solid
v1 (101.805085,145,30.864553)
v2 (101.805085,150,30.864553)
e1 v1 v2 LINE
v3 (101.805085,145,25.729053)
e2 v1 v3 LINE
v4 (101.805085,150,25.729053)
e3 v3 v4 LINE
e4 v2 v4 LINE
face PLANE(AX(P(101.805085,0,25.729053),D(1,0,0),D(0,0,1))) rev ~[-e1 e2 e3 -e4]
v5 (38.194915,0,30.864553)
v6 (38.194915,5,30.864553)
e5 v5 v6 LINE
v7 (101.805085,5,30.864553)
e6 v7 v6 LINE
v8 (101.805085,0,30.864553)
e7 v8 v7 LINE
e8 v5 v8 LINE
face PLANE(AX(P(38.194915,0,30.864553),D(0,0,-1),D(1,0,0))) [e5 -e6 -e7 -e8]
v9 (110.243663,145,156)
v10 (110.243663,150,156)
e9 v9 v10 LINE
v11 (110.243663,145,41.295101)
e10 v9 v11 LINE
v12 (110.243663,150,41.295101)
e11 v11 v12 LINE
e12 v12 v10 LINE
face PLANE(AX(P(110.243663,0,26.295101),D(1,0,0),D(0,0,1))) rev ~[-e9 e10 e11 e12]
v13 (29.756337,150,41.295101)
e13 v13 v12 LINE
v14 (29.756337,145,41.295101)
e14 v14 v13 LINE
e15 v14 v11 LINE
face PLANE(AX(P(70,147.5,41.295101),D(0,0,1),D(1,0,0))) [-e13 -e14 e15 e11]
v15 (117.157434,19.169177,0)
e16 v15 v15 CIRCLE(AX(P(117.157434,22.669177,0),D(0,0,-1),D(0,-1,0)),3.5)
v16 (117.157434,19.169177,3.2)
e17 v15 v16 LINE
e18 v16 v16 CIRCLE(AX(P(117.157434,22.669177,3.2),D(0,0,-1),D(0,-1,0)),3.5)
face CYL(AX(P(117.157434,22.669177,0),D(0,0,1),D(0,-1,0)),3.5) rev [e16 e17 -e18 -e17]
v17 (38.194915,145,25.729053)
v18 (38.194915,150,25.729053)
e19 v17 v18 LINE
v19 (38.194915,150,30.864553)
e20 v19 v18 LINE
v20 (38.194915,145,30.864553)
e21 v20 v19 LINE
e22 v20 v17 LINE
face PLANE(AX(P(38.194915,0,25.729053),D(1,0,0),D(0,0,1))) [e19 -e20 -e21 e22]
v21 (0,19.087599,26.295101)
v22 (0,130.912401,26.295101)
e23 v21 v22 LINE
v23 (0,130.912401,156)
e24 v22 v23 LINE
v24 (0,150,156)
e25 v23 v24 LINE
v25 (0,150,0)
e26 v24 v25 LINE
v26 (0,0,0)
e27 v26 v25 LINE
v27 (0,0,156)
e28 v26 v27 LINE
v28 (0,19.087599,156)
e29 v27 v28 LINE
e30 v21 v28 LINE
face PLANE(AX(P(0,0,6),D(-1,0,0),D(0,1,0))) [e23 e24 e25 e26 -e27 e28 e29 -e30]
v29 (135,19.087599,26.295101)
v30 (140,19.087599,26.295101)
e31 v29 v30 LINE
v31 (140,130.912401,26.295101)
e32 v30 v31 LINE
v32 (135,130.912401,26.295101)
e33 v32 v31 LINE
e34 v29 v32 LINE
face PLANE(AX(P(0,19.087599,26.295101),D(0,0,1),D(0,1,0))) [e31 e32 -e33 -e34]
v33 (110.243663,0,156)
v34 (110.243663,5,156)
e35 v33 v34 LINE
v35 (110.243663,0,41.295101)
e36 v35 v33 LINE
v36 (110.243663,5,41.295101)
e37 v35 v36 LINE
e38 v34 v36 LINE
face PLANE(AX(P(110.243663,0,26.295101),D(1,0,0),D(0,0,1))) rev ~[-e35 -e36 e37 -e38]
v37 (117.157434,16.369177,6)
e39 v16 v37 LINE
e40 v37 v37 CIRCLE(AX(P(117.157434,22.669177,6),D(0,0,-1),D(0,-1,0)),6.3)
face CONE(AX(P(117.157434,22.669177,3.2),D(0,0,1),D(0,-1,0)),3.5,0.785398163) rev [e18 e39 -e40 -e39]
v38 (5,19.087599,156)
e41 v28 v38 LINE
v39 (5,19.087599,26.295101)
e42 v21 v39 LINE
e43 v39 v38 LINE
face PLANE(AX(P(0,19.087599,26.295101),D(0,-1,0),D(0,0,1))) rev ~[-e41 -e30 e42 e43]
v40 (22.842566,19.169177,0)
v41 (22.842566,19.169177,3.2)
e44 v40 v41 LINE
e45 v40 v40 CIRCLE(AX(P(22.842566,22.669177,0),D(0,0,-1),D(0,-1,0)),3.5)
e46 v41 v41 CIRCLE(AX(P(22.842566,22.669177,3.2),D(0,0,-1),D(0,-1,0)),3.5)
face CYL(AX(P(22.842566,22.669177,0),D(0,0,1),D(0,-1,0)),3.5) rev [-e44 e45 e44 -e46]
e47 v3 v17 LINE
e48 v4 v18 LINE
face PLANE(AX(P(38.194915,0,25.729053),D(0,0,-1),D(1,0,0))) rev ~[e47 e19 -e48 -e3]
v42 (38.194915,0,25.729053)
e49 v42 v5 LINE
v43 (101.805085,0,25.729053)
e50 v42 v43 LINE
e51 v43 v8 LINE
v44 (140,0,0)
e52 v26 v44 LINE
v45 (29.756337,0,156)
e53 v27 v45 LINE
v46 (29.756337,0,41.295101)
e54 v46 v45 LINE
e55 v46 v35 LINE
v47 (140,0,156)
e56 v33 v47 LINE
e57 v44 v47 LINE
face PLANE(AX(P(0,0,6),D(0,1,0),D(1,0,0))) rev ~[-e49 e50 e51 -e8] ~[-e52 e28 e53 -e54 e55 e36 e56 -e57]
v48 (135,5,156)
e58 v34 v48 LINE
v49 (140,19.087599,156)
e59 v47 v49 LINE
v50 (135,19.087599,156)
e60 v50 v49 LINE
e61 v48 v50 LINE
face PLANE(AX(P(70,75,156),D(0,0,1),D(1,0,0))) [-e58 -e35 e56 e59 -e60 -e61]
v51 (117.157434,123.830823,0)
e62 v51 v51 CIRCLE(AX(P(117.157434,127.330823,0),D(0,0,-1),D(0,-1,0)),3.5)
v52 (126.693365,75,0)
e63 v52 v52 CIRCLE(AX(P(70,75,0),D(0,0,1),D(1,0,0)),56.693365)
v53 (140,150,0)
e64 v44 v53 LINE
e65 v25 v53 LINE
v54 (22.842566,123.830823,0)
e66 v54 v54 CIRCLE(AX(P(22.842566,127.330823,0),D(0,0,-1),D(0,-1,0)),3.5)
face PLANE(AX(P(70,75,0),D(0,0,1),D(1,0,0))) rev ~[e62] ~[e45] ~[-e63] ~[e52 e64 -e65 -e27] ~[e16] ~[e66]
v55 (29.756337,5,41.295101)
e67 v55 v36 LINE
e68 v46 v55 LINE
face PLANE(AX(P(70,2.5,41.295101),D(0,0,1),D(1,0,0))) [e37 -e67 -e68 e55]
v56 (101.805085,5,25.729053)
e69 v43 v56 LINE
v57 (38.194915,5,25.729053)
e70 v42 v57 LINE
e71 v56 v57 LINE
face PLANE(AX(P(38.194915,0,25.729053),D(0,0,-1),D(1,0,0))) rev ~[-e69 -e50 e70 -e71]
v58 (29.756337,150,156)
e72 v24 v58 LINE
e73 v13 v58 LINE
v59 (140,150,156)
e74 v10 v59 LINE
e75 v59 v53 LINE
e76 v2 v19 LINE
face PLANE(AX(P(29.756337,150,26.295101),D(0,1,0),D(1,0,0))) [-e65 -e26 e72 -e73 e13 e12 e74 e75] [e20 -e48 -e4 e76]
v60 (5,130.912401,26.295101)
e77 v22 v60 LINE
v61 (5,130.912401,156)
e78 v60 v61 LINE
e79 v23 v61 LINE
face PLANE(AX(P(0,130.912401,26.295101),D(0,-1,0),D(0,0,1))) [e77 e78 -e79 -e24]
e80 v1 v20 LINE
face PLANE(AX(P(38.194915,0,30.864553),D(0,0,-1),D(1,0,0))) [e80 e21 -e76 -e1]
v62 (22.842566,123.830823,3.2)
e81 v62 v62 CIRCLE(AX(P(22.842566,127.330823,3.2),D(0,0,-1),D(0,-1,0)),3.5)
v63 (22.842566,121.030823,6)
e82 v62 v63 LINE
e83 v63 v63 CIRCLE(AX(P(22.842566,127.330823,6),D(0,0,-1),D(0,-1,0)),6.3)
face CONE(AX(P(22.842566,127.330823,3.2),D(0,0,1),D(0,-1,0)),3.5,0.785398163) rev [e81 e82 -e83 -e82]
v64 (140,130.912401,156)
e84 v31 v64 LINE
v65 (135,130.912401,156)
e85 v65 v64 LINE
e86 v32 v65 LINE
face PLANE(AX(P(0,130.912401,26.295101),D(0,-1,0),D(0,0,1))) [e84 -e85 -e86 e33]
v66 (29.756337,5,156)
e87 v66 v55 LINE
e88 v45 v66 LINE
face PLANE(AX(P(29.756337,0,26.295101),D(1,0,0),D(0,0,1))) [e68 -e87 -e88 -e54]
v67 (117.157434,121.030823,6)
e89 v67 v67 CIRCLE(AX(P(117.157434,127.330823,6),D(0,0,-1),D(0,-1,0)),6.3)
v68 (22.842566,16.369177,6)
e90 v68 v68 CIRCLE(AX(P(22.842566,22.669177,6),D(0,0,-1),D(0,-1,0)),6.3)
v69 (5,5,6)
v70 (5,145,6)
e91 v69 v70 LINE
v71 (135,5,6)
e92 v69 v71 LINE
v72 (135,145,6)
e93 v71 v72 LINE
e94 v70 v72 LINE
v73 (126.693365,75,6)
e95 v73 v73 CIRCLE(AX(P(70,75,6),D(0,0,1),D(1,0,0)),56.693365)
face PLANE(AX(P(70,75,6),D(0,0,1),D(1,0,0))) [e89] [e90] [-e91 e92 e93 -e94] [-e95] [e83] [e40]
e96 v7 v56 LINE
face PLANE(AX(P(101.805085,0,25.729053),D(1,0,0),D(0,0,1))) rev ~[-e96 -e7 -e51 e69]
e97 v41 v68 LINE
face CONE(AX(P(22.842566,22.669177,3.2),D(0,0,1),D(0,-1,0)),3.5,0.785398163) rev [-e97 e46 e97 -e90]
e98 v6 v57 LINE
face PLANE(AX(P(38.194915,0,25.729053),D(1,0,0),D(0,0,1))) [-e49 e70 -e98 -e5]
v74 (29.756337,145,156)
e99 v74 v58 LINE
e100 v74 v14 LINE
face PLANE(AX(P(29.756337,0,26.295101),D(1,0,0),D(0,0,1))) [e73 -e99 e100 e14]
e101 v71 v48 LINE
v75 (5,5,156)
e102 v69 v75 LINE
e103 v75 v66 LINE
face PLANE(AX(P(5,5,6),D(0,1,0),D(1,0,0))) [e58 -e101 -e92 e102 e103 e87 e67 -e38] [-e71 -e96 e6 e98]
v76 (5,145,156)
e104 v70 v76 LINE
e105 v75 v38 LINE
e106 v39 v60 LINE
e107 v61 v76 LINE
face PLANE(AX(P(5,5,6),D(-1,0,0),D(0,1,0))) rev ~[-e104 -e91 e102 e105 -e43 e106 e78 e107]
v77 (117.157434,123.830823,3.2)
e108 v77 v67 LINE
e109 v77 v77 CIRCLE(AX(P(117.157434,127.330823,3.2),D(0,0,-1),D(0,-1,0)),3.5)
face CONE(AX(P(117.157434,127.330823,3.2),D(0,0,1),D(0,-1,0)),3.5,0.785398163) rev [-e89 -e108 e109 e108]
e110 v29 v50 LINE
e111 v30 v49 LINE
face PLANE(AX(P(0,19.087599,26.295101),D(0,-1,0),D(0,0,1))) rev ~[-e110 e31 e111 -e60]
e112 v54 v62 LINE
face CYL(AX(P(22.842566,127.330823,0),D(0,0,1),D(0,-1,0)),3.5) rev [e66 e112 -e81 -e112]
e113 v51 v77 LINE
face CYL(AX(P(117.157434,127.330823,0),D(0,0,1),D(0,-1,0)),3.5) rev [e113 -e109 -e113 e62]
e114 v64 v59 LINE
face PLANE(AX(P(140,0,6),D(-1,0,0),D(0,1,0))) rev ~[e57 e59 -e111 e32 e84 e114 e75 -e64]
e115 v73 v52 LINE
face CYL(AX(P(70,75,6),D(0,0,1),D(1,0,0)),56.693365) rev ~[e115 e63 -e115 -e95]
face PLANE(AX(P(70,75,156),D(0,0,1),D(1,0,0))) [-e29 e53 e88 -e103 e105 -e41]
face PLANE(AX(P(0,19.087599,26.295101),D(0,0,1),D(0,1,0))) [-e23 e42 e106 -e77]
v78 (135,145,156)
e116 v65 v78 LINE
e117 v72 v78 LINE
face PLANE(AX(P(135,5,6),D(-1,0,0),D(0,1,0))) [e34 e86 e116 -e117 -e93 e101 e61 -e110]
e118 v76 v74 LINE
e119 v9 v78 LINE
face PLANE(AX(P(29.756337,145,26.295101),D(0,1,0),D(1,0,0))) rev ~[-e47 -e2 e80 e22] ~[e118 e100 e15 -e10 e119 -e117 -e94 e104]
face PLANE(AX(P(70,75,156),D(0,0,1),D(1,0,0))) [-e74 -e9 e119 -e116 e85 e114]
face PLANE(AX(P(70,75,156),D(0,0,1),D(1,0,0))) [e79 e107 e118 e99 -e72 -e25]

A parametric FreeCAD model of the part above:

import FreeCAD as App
import Part
import Sketcher

V = App.Vector
Q = App.Units.Quantity

doc = App.newDocument("Part")
body = doc.addObject("PartDesign::Body", "Body")

# Sketch on XY plane
sketch1 = body.newObject("Sketcher::SketchObject", "Sketch")
sketch1.AttachmentSupport = (doc.getObject("XY_Plane"), [""])
sketch1.MapMode = "FlatFace"
sketch1.addGeometry(Part.LineSegment(V(0, 150, 0), V(0, 0, 0)), False)
sketch1.addGeometry(Part.LineSegment(V(0, 0, 0), V(140, 0, 0)), False)
sketch1.addGeometry(Part.LineSegment(V(140, 0, 0), V(140, 150, 0)), False)
sketch1.addGeometry(Part.LineSegment(V(140, 150, 0), V(0, 150, 0)), False)
sketch1.addConstraint(Sketcher.Constraint("Coincident", 0, 2, 1, 1))
sketch1.addConstraint(Sketcher.Constraint("Coincident", 1, 2, 2, 1))
sketch1.addConstraint(Sketcher.Constraint("Coincident", 2, 2, 3, 1))
sketch1.addConstraint(Sketcher.Constraint("Coincident", 3, 2, 0, 1))
sketch1.addConstraint(Sketcher.Constraint("Vertical", 0))
sketch1.addConstraint(Sketcher.Constraint("Horizontal", 1))
sketch1.addConstraint(Sketcher.Constraint("Vertical", 2))
sketch1.addConstraint(Sketcher.Constraint("Horizontal", 3))
sketch1.addConstraint(Sketcher.Constraint("Coincident", 0, 2, -1, 1))
sketch1.addConstraint(Sketcher.Constraint("DistanceX", 1, 1, 1, 2, Q("140 mm")))
sketch1.addConstraint(Sketcher.Constraint("DistanceY", 0, 2, 0, 1, Q("150 mm")))
pad1 = body.newObject("PartDesign::Pad", "Pad")
pad1.Profile = sketch1
pad1.Length = 6

# Sketch on XY plane
sketch2 = body.newObject("Sketcher::SketchObject", "Sketch001")
sketch2.AttachmentSupport = (doc.getObject("XY_Plane"), [""])
sketch2.MapMode = "FlatFace"
sketch2.AttachmentOffset = App.Placement(V(0, 0, 6), App.Rotation())
sketch2.addGeometry(Part.LineSegment(V(0, 150, 0), V(0, 0, 0)), False)
sketch2.addGeometry(Part.LineSegment(V(0, 0, 0), V(140, 0, 0)), False)
sketch2.addGeometry(Part.LineSegment(V(140, 0, 0), V(140, 150, 0)), False)
sketch2.addGeometry(Part.LineSegment(V(140, 150, 0), V(0, 150, 0)), False)
sketch2.addGeometry(Part.LineSegment(V(135, 5, 0), V(5, 5, 0)), False)
sketch2.addGeometry(Part.LineSegment(V(5, 5, 0), V(5, 145, 0)), False)
sketch2.addGeometry(Part.LineSegment(V(5, 145, 0), V(135, 145, 0)), False)
sketch2.addGeometry(Part.LineSegment(V(135, 145, 0), V(135, 5, 0)), False)
sketch2.addConstraint(Sketcher.Constraint("Coincident", 0, 2, 1, 1))
sketch2.addConstraint(Sketcher.Constraint("Coincident", 1, 2, 2, 1))
sketch2.addConstraint(Sketcher.Constraint("Coincident", 2, 2, 3, 1))
sketch2.addConstraint(Sketcher.Constraint("Coincident", 3, 2, 0, 1))
sketch2.addConstraint(Sketcher.Constraint("Coincident", 4, 2, 5, 1))
sketch2.addConstraint(Sketcher.Constraint("Coincident", 5, 2, 6, 1))
sketch2.addConstraint(Sketcher.Constraint("Coincident", 6, 2, 7, 1))
sketch2.addConstraint(Sketcher.Constraint("Coincident", 7, 2, 4, 1))
sketch2.addConstraint(Sketcher.Constraint("Vertical", 0))
sketch2.addConstraint(Sketcher.Constraint("Horizontal", 1))
sketch2.addConstraint(Sketcher.Constraint("Vertical", 2))
sketch2.addConstraint(Sketcher.Constraint("Horizontal", 3))
sketch2.addConstraint(Sketcher.Constraint("Horizontal", 4))
sketch2.addConstraint(Sketcher.Constraint("Vertical", 5))
sketch2.addConstraint(Sketcher.Constraint("Horizontal", 6))
sketch2.addConstraint(Sketcher.Constraint("Vertical", 7))
sketch2.addConstraint(Sketcher.Constraint("Coincident", 0, 2, -1, 1))
sketch2.addConstraint(Sketcher.Constraint("Equal", 3, 5))
sketch2.addConstraint(Sketcher.Constraint("DistanceX", 1, 1, 1, 2, Q("140 mm")))
sketch2.addConstraint(Sketcher.Constraint("DistanceX", 4, 2, 4, 1, Q("130 mm")))
sketch2.addConstraint(Sketcher.Constraint("DistanceY", 0, 2, 0, 1, Q("150 mm")))
sketch2.addConstraint(Sketcher.Constraint("DistanceX", -1, 1, 4, 2, Q("5 mm")))
sketch2.addConstraint(Sketcher.Constraint("DistanceY", -1, 1, 4, 2, Q("5 mm")))
pad2 = body.newObject("PartDesign::Pad", "Pad001")
pad2.Profile = sketch2
pad2.Length = 150

# Sketch on XZ plane
sketch3 = body.newObject("Sketcher::SketchObject", "Sketch002")
sketch3.AttachmentSupport = (doc.getObject("XZ_Plane"), [""])
sketch3.MapMode = "FlatFace"
sketch3.addGeometry(Part.LineSegment(V(29.756337, 285.704899, 0), V(29.756337, 26.295101, 0)), False)
sketch3.addGeometry(Part.LineSegment(V(29.756337, 26.295101, 0), V(110.243663, 26.295101, 0)), False)
sketch3.addGeometry(Part.LineSegment(V(110.243663, 26.295101, 0), V(110.243663, 285.704899, 0)), False)
sketch3.addGeometry(Part.LineSegment(V(110.243663, 285.704899, 0), V(29.756337, 285.704899, 0)), False)
sketch3.addConstraint(Sketcher.Constraint("Coincident", 0, 2, 1, 1))
sketch3.addConstraint(Sketcher.Constraint("Coincident", 1, 2, 2, 1))
sketch3.addConstraint(Sketcher.Constraint("Coincident", 2, 2, 3, 1))
sketch3.addConstraint(Sketcher.Constraint("Coincident", 3, 2, 0, 1))
sketch3.addConstraint(Sketcher.Constraint("Vertical", 0))
sketch3.addConstraint(Sketcher.Constraint("Horizontal", 1))
sketch3.addConstraint(Sketcher.Constraint("Vertical", 2))
sketch3.addConstraint(Sketcher.Constraint("Horizontal", 3))
sketch3.addConstraint(Sketcher.Constraint("DistanceY", 0, 2, 0, 1, Q("259.409798 mm")))
sketch3.addConstraint(Sketcher.Constraint("DistanceY", -1, 1, 0, 2, Q("26.295101 mm")))
sketch3.addConstraint(Sketcher.Constraint("DistanceX", 1, 1, 1, 2, Q("80.487327 mm")))
sketch3.addConstraint(Sketcher.Constraint("DistanceX", -1, 1, 0, 2, Q("29.756337 mm")))
pocket1 = body.newObject("PartDesign::Pocket", "Pocket")
pocket1.Profile = sketch3
pocket1.Length = 150

# Sketch on YZ plane
sketch4 = body.newObject("Sketcher::SketchObject", "Sketch003")
sketch4.AttachmentSupport = (doc.getObject("YZ_Plane"), [""])
sketch4.MapMode = "FlatFace"
sketch4.addGeometry(Part.LineSegment(V(130.912401, 26.295101, 0), V(19.087599, 26.295101, 0)), False)
sketch4.addGeometry(Part.LineSegment(V(19.087599, 26.295101, 0), V(19.087599, 285.704899, 0)), False)
sketch4.addGeometry(Part.LineSegment(V(19.087599, 285.704899, 0), V(130.912401, 285.704899, 0)), False)
sketch4.addGeometry(Part.LineSegment(V(130.912401, 285.704899, 0), V(130.912401, 26.295101, 0)), False)
sketch4.addConstraint(Sketcher.Constraint("Coincident", 0, 2, 1, 1))
sketch4.addConstraint(Sketcher.Constraint("Coincident", 1, 2, 2, 1))
sketch4.addConstraint(Sketcher.Constraint("Coincident", 2, 2, 3, 1))
sketch4.addConstraint(Sketcher.Constraint("Coincident", 3, 2, 0, 1))
sketch4.addConstraint(Sketcher.Constraint("Horizontal", 0))
sketch4.addConstraint(Sketcher.Constraint("Vertical", 1))
sketch4.addConstraint(Sketcher.Constraint("Horizontal", 2))
sketch4.addConstraint(Sketcher.Constraint("Vertical", 3))
sketch4.addConstraint(Sketcher.Constraint("DistanceX", 0, 2, 0, 1, Q("111.824801 mm")))
sketch4.addConstraint(Sketcher.Constraint("DistanceY", 1, 1, 1, 2, Q("259.409798 mm")))
sketch4.addConstraint(Sketcher.Constraint("DistanceX", -1, 1, 0, 2, Q("19.087599 mm")))
sketch4.addConstraint(Sketcher.Constraint("DistanceY", -1, 1, 0, 2, Q("26.295101 mm")))
pocket2 = body.newObject("PartDesign::Pocket", "Pocket001")
pocket2.Profile = sketch4
pocket2.Length = 150
pocket2.Reversed = True

# Sketch on YZ plane
sketch5 = body.newObject("Sketcher::SketchObject", "Sketch004")
sketch5.AttachmentSupport = (doc.getObject("YZ_Plane"), [""])
sketch5.MapMode = "FlatFace"
sketch5.AttachmentOffset = App.Placement(V(0, 0, 22.842566), App.Rotation())
sketch5.addGeometry(Part.LineSegment(V(127.330823, 0, 0), V(127.330823, 6, 0)), False)
sketch5.addGeometry(Part.LineSegment(V(127.330823, 6, 0), V(121.030823, 6, 0)), False)
sketch5.addGeometry(Part.LineSegment(V(121.030823, 6, 0), V(123.830823, 3.2, 0)), False)
sketch5.addGeometry(Part.LineSegment(V(123.830823, 3.2, 0), V(123.830823, 0, 0)), False)
sketch5.addGeometry(Part.LineSegment(V(123.830823, 0, 0), V(127.330823, 0, 0)), False)
sketch5.addGeometry(Part.LineSegment(V(127.330823, 6, 0), V(127.330823, 0, 0)), True)  # axis
sketch5.addConstraint(Sketcher.Constraint("Coincident", 0, 2, 1, 1))
sketch5.addConstraint(Sketcher.Constraint("Coincident", 1, 2, 2, 1))
sketch5.addConstraint(Sketcher.Constraint("Coincident", 2, 2, 3, 1))
sketch5.addConstraint(Sketcher.Constraint("Coincident", 3, 2, 4, 1))
sketch5.addConstraint(Sketcher.Constraint("Coincident", 4, 2, 0, 1))
sketch5.addConstraint(Sketcher.Constraint("Vertical", 0))
sketch5.addConstraint(Sketcher.Constraint("Horizontal", 1))
sketch5.addConstraint(Sketcher.Constraint("Vertical", 3))
sketch5.addConstraint(Sketcher.Constraint("Horizontal", 4))
sketch5.addConstraint(Sketcher.Constraint("Vertical", 5))
sketch5.addConstraint(Sketcher.Constraint("Coincident", 5, 1, 0, 2))
sketch5.addConstraint(Sketcher.Constraint("PointOnObject", 3, 2, -1))
sketch5.addConstraint(Sketcher.Constraint("PointOnObject", 5, 2, -1))
sketch5.addConstraint(Sketcher.Constraint("DistanceY", 0, 1, 0, 2, Q("6 mm")))
sketch5.addConstraint(Sketcher.Constraint("Angle", 2, Q("-45 deg")))
sketch5.addConstraint(Sketcher.Constraint("DistanceX", 1, 2, 1, 1, Q("6.3 mm")))
sketch5.addConstraint(Sketcher.Constraint("DistanceX", 4, 1, 4, 2, Q("3.5 mm")))
sketch5.addConstraint(Sketcher.Constraint("DistanceX", -1, 1, 0, 2, Q("127.330823 mm")))
groove = body.newObject("PartDesign::Groove", "Groove")
groove.Profile = sketch5
groove.ReferenceAxis = (sketch5, ["Axis0"])
groove.Angle = 360
doc.recompute()

linearpattern = body.newObject("PartDesign::LinearPattern", "LinearPattern")
linearpattern.Originals = [groove]
linearpattern.Direction = (doc.getObject("X_Axis"), [""])
linearpattern.Mode = "offset"
linearpattern.Offset = 94.314868
linearpattern.Occurrences = 2
body.Tip = linearpattern
doc.recompute()

linearpattern2 = body.newObject("PartDesign::LinearPattern", "LinearPattern001")
linearpattern2.Originals = [groove]
linearpattern2.Direction = (doc.getObject("Y_Axis"), [""])
linearpattern2.Mode = "offset"
linearpattern2.Offset = 104.661647
linearpattern2.Occurrences = 2
linearpattern2.Reversed = True
body.Tip = linearpattern2
doc.recompute()

datumline = body.newObject("PartDesign::Line", "DatumLine")
datumline.Placement = App.Placement(V(0, 0, 0), App.Rotation(V(0, 0, 1), V(0.669432766, -0.742872648, 0)))
linearpattern3 = body.newObject("PartDesign::LinearPattern", "LinearPattern002")
linearpattern3.Originals = [groove]
linearpattern3.Direction = (datumline, [""])
linearpattern3.Mode = "offset"
linearpattern3.Offset = 140.887738
linearpattern3.Occurrences = 2
body.Tip = linearpattern3

# Sketch on XY plane
sketch6 = body.newObject("Sketcher::SketchObject", "Sketch005")
sketch6.AttachmentSupport = (doc.getObject("XY_Plane"), [""])
sketch6.MapMode = "FlatFace"
sketch6.AttachmentOffset = App.Placement(V(0, 0, 26.295101), App.Rotation())
sketch6.addGeometry(Part.LineSegment(V(29.756337, 150, 0), V(29.756337, 145, 0)), False)
sketch6.addGeometry(Part.LineSegment(V(29.756337, 145, 0), V(110.243663, 145, 0)), False)
sketch6.addGeometry(Part.LineSegment(V(110.243663, 145, 0), V(110.243663, 150, 0)), False)
sketch6.addGeometry(Part.LineSegment(V(110.243663, 150, 0), V(29.756337, 150, 0)), False)
sketch6.addGeometry(Part.LineSegment(V(29.756337, 5, 0), V(29.756337, 0, 0)), False)
sketch6.addGeometry(Part.LineSegment(V(29.756337, 0, 0), V(110.243663, 0, 0)), False)
sketch6.addGeometry(Part.LineSegment(V(110.243663, 0, 0), V(110.243663, 5, 0)), False)
sketch6.addGeometry(Part.LineSegment(V(110.243663, 5, 0), V(29.756337, 5, 0)), False)
sketch6.addConstraint(Sketcher.Constraint("Coincident", 0, 2, 1, 1))
sketch6.addConstraint(Sketcher.Constraint("Coincident", 1, 2, 2, 1))
sketch6.addConstraint(Sketcher.Constraint("Coincident", 2, 2, 3, 1))
sketch6.addConstraint(Sketcher.Constraint("Coincident", 3, 2, 0, 1))
sketch6.addConstraint(Sketcher.Constraint("Coincident", 4, 2, 5, 1))
sketch6.addConstraint(Sketcher.Constraint("Coincident", 5, 2, 6, 1))
sketch6.addConstraint(Sketcher.Constraint("Coincident", 6, 2, 7, 1))
sketch6.addConstraint(Sketcher.Constraint("Coincident", 7, 2, 4, 1))
sketch6.addConstraint(Sketcher.Constraint("Vertical", 0))
sketch6.addConstraint(Sketcher.Constraint("Horizontal", 1))
sketch6.addConstraint(Sketcher.Constraint("Vertical", 2))
sketch6.addConstraint(Sketcher.Constraint("Horizontal", 3))
sketch6.addConstraint(Sketcher.Constraint("Vertical", 4))
sketch6.addConstraint(Sketcher.Constraint("Horizontal", 5))
sketch6.addConstraint(Sketcher.Constraint("Vertical", 6))
sketch6.addConstraint(Sketcher.Constraint("Horizontal", 7))
sketch6.addConstraint(Sketcher.Constraint("PointOnObject", 4, 2, -1))
sketch6.addConstraint(Sketcher.Constraint("Vertical", 3, 2, 4, 2))
sketch6.addConstraint(Sketcher.Constraint("Vertical", 2, 2, 5, 2))
sketch6.addConstraint(Sketcher.Constraint("Equal", 2, 4))
sketch6.addConstraint(Sketcher.Constraint("DistanceY", 0, 2, 0, 1, Q("5 mm")))
sketch6.addConstraint(Sketcher.Constraint("DistanceY", -1, 1, 0, 2, Q("145 mm")))
sketch6.addConstraint(Sketcher.Constraint("DistanceX", 1, 1, 1, 2, Q("80.487327 mm")))
sketch6.addConstraint(Sketcher.Constraint("DistanceX", -1, 1, 0, 2, Q("29.756337 mm")))
pad3 = body.newObject("PartDesign::Pad", "Pad002")
pad3.Profile = sketch6
pad3.Length = 15

# Sketch on XZ plane
sketch7 = body.newObject("Sketcher::SketchObject", "Sketch006")
sketch7.AttachmentSupport = (doc.getObject("XZ_Plane"), [""])
sketch7.MapMode = "FlatFace"
sketch7.addGeometry(Part.LineSegment(V(38.194915, 30.864553, 0), V(38.194915, 25.729053, 0)), False)
sketch7.addGeometry(Part.LineSegment(V(38.194915, 25.729053, 0), V(101.805085, 25.729053, 0)), False)
sketch7.addGeometry(Part.LineSegment(V(101.805085, 25.729053, 0), V(101.805085, 30.864553, 0)), False)
sketch7.addGeometry(Part.LineSegment(V(101.805085, 30.864553, 0), V(38.194915, 30.864553, 0)), False)
sketch7.addConstraint(Sketcher.Constraint("Coincident", 0, 2, 1, 1))
sketch7.addConstraint(Sketcher.Constraint("Coincident", 1, 2, 2, 1))
sketch7.addConstraint(Sketcher.Constraint("Coincident", 2, 2, 3, 1))
sketch7.addConstraint(Sketcher.Constraint("Coincident", 3, 2, 0, 1))
sketch7.addConstraint(Sketcher.Constraint("Vertical", 0))
sketch7.addConstraint(Sketcher.Constraint("Horizontal", 1))
sketch7.addConstraint(Sketcher.Constraint("Vertical", 2))
sketch7.addConstraint(Sketcher.Constraint("Horizontal", 3))
sketch7.addConstraint(Sketcher.Constraint("DistanceY", 0, 2, 0, 1, Q("5.1355 mm")))
sketch7.addConstraint(Sketcher.Constraint("DistanceX", 1, 1, 1, 2, Q("63.610171 mm")))
sketch7.addConstraint(Sketcher.Constraint("DistanceX", -1, 1, 0, 2, Q("38.194915 mm")))
sketch7.addConstraint(Sketcher.Constraint("DistanceY", -1, 1, 0, 2, Q("25.729053 mm")))
pocket3 = body.newObject("PartDesign::Pocket", "Pocket002")
pocket3.Profile = sketch7
pocket3.Length = 219

# Sketch on XY plane
sketch8 = body.newObject("Sketcher::SketchObject", "Sketch007")
sketch8.AttachmentSupport = (doc.getObject("XY_Plane"), [""])
sketch8.MapMode = "FlatFace"
sketch8.AttachmentOffset = App.Placement(V(0, 0, 6), App.Rotation())
sketch8.addGeometry(Part.Circle(V(70, 75, 0), V(0, 0, 1), 56.693365), False)
sketch8.addConstraint(Sketcher.Constraint("DistanceX", -1, 1, 0, 3, Q("70 mm")))
sketch8.addConstraint(Sketcher.Constraint("DistanceY", -1, 1, 0, 3, Q("75 mm")))
sketch8.addConstraint(Sketcher.Constraint("Diameter", 0, Q("113.38673 mm")))
pocket4 = body.newObject("PartDesign::Pocket", "Pocket003")
pocket4.Profile = sketch8
pocket4.Length = 10

doc.recompute()
